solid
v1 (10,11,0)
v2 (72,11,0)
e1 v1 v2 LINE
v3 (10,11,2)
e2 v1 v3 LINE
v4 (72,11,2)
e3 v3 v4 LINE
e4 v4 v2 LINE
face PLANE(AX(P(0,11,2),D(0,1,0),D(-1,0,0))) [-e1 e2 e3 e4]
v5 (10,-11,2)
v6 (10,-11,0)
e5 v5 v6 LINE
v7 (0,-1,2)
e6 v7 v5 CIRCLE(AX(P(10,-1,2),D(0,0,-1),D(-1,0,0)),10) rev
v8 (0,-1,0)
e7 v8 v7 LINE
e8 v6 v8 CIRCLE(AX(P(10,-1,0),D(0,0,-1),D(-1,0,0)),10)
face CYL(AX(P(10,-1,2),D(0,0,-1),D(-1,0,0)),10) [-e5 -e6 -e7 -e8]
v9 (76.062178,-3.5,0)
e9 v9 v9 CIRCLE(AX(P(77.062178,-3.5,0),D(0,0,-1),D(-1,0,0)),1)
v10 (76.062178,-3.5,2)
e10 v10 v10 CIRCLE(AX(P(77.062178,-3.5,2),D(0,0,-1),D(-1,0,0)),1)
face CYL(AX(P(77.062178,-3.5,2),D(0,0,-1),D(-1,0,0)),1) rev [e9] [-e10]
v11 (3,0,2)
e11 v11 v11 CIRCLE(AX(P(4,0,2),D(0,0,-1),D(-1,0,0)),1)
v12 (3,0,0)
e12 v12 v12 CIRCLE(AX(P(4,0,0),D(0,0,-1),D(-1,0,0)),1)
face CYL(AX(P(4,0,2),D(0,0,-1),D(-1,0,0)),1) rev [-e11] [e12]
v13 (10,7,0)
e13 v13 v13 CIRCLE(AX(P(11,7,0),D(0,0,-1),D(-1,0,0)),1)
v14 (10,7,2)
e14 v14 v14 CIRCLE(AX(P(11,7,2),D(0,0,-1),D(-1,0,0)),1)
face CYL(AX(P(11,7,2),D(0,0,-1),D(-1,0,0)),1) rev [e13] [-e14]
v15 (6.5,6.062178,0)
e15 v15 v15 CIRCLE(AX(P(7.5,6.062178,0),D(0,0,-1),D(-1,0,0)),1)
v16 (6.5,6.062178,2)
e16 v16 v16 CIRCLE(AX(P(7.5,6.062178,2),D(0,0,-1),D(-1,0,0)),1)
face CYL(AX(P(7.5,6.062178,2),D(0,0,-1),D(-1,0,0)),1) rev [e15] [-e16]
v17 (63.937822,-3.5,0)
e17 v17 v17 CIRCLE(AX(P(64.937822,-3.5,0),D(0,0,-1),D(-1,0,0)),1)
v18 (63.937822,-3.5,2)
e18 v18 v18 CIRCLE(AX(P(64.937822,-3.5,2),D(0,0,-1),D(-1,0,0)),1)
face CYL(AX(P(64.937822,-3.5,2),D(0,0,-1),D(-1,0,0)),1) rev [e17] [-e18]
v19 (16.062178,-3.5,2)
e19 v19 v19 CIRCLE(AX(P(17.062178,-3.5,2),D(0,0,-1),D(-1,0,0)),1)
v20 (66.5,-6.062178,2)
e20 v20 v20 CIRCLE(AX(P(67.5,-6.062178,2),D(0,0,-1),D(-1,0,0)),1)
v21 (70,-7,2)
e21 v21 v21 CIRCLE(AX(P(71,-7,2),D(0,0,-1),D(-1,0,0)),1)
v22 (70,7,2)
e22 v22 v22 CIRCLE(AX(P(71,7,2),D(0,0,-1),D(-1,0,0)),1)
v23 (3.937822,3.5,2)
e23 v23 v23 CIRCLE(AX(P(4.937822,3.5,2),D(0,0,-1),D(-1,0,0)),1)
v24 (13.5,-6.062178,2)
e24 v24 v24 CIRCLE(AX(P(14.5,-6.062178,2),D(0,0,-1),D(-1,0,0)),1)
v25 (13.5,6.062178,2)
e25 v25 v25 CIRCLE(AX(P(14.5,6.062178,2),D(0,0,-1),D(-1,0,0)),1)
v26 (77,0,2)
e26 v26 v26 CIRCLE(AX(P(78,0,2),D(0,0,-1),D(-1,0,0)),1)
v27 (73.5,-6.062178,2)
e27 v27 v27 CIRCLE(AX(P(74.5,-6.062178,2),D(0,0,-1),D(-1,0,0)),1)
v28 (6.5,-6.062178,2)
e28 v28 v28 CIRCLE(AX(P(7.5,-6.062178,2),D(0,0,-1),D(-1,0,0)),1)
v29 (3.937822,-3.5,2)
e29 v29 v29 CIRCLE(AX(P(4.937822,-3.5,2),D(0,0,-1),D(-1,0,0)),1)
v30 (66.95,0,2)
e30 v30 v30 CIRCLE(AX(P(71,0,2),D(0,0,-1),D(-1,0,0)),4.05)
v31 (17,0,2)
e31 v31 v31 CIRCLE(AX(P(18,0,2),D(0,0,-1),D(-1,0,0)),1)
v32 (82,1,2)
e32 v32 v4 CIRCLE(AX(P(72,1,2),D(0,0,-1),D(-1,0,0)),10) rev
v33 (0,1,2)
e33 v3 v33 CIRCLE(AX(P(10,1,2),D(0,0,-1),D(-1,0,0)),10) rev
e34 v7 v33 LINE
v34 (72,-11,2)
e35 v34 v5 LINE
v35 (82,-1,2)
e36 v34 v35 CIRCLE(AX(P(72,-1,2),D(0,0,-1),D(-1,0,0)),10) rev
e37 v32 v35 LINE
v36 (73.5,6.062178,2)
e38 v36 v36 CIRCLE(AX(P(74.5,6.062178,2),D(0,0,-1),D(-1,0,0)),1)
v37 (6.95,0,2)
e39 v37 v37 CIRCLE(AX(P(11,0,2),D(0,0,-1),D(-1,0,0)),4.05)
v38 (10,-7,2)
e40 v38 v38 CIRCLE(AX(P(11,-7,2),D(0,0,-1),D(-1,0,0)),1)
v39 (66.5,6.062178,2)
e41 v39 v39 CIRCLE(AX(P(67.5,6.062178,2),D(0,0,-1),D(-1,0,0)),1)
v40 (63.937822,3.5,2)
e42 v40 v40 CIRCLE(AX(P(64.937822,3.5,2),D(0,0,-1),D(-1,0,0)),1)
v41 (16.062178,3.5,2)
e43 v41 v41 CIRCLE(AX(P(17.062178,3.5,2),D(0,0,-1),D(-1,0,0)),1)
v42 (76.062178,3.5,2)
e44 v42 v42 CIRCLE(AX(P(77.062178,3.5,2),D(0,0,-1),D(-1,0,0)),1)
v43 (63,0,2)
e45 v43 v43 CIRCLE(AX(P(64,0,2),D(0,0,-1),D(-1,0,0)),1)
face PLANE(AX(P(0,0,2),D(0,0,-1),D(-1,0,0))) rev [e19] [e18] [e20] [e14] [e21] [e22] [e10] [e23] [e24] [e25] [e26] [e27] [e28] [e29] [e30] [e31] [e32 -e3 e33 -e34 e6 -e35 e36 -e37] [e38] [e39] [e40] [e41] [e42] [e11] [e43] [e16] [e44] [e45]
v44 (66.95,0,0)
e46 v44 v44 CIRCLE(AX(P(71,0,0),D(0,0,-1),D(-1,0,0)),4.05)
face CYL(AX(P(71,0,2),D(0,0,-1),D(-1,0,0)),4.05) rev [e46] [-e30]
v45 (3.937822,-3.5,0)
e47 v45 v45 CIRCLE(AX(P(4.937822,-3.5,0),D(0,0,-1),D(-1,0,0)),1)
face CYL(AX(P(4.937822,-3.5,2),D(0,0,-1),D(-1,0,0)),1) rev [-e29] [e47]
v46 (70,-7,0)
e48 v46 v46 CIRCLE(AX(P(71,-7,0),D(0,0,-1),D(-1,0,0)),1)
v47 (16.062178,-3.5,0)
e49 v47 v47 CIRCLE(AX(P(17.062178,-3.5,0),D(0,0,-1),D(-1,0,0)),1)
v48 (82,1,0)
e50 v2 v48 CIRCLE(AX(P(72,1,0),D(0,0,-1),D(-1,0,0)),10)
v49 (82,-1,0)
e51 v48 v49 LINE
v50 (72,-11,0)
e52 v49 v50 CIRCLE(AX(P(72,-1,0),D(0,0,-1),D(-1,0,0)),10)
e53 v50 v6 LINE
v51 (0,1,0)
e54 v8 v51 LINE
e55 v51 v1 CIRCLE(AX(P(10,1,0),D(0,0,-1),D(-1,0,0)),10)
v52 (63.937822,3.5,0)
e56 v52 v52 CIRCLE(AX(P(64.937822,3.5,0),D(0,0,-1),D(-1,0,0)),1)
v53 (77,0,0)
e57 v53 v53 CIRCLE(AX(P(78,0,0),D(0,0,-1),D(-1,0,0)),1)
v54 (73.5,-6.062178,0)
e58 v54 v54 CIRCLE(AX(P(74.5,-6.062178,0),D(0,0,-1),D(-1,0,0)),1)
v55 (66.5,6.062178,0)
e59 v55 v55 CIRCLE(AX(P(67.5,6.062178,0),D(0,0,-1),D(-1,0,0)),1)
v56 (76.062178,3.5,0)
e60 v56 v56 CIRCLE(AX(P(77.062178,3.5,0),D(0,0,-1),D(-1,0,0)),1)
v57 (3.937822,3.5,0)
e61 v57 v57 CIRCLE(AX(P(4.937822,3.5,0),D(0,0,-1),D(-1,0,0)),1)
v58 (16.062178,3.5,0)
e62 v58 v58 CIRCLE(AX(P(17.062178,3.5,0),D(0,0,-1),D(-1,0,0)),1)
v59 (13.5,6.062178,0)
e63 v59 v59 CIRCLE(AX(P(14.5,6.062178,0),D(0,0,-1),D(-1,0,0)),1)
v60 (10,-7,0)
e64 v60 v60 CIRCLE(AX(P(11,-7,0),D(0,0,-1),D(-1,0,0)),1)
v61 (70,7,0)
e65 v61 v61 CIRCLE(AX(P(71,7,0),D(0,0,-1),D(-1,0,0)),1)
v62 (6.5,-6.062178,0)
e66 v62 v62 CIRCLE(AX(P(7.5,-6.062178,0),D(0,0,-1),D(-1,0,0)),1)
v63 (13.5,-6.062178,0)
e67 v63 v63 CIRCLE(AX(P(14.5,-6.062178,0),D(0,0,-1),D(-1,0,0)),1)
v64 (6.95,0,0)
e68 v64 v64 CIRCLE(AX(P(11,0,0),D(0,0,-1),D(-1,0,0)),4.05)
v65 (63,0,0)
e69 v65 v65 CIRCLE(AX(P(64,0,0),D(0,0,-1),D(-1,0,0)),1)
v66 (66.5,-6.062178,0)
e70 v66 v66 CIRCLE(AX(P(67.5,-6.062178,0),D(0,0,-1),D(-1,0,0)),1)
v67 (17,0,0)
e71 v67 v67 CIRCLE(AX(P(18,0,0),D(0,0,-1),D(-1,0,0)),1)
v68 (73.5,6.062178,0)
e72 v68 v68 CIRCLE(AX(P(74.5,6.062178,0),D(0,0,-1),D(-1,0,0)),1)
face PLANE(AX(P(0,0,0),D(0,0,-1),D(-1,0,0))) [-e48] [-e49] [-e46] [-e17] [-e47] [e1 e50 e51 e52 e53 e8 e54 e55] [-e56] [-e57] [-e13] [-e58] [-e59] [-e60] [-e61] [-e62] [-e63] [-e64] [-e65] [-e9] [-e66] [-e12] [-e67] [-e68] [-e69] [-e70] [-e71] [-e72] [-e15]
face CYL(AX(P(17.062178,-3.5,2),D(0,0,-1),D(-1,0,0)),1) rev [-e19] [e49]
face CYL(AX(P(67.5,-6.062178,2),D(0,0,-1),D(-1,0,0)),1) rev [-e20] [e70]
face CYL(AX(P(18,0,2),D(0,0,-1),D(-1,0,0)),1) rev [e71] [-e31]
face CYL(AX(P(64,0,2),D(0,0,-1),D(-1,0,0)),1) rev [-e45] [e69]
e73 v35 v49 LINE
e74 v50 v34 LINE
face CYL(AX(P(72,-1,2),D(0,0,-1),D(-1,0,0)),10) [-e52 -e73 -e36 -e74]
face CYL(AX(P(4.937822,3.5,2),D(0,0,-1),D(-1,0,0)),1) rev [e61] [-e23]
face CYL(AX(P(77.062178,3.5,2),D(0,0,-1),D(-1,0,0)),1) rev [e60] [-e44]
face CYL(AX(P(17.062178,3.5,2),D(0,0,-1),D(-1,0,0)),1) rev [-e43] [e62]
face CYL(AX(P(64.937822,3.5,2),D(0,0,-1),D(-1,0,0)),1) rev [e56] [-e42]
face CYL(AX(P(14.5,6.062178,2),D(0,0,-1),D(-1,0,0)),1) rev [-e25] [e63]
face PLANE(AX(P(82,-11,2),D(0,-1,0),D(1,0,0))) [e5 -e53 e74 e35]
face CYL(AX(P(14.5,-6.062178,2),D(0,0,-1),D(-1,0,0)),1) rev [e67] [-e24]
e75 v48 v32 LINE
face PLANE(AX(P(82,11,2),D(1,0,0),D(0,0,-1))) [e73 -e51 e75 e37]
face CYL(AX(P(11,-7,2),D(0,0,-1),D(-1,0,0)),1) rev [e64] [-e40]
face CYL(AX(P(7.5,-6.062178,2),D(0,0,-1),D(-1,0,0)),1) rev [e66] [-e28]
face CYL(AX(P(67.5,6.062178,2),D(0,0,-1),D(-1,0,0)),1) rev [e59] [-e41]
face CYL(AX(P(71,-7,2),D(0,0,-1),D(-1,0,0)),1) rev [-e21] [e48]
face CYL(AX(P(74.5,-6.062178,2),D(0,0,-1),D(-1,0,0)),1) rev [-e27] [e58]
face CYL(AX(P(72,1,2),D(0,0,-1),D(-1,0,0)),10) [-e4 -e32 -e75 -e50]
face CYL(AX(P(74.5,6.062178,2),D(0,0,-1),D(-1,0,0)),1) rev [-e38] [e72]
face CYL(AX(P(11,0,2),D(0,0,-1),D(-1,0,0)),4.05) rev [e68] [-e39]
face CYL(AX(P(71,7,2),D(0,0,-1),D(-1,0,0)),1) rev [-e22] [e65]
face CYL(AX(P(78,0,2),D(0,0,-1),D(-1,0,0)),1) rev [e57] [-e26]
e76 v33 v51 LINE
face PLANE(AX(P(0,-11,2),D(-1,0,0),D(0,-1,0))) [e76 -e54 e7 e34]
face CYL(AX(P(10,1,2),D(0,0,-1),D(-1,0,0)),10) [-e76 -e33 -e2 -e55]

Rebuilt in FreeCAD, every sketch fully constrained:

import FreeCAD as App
import Part
import Sketcher


def edges_at(feature, points):
    """Names of the edges that pass closest to the given points."""
    edges = feature.Shape.Edges
    near = lambda p: min(range(len(edges)), key=lambda i: edges[i].distToShape(Part.Vertex(*p))[0])
    return sorted({f"Edge{near(p) + 1}" for p in points})


def add_polygon(sketch, points):
    """Adds a closed chain of lines whose ends are joined by coincident constraints."""
    first, n = sketch.GeometryCount, len(points)
    for a, b in zip(points, points[1:] + points[:1]):
        sketch.addGeometry(Part.LineSegment(App.Vector(*a, 0), App.Vector(*b, 0)), False)
    for i in range(n):
        sketch.addConstraint(Sketcher.Constraint("Coincident", first + i, 2, first + (i + 1) % n, 1))

doc = App.newDocument("Part")
body = doc.addObject("PartDesign::Body", "Body")

# Sketch on XY plane
sketch1 = body.newObject("Sketcher::SketchObject", "Sketch")
sketch1.AttachmentSupport = (doc.getObject("XY_Plane"), [""])
sketch1.MapMode = "FlatFace"
add_polygon(sketch1, [(82, 11), (82, -11), (0, -11), (0, 11)])  # lines 0-3
sketch1.addGeometry(Part.Circle(App.Vector(74.5, -6.1, 0), App.Vector(0, 0, 1), 1), False)  # 4
sketch1.addGeometry(Part.Circle(App.Vector(71, -7, 0), App.Vector(0, 0, 1), 1), False)  # 5
sketch1.addGeometry(Part.Circle(App.Vector(67.5, -6.1, 0), App.Vector(0, 0, 1), 1), False)  # 6
sketch1.addGeometry(Part.Circle(App.Vector(77.1, -3.5, 0), App.Vector(0, 0, 1), 1), False)  # 7
sketch1.addGeometry(Part.Circle(App.Vector(64.9, -3.5, 0), App.Vector(0, 0, 1), 1), False)  # 8
sketch1.addGeometry(Part.Circle(App.Vector(14.5, -6.1, 0), App.Vector(0, 0, 1), 1), False)  # 9
sketch1.addGeometry(Part.Circle(App.Vector(11, -7, 0), App.Vector(0, 0, 1), 1), False)  # 10
sketch1.addGeometry(Part.Circle(App.Vector(7.5, -6.1, 0), App.Vector(0, 0, 1), 1), False)  # 11
sketch1.addGeometry(Part.Circle(App.Vector(17.1, -3.5, 0), App.Vector(0, 0, 1), 1), False)  # 12
sketch1.addGeometry(Part.Circle(App.Vector(4.9, -3.5, 0), App.Vector(0, 0, 1), 1), False)  # 13
sketch1.addGeometry(Part.Circle(App.Vector(78, 0, 0), App.Vector(0, 0, 1), 1), False)  # 14
sketch1.addGeometry(Part.Circle(App.Vector(71, 0, 0), App.Vector(0, 0, 1), 4), False)  # 15
sketch1.addGeometry(Part.Circle(App.Vector(64, 0, 0), App.Vector(0, 0, 1), 1), False)  # 16
sketch1.addGeometry(Part.Circle(App.Vector(77.1, 3.5, 0), App.Vector(0, 0, 1), 1), False)  # 17
sketch1.addGeometry(Part.Circle(App.Vector(64.9, 3.5, 0), App.Vector(0, 0, 1), 1), False)  # 18
sketch1.addGeometry(Part.Circle(App.Vector(74.5, 6.1, 0), App.Vector(0, 0, 1), 1), False)  # 19
sketch1.addGeometry(Part.Circle(App.Vector(71, 7, 0), App.Vector(0, 0, 1), 1), False)  # 20
sketch1.addGeometry(Part.Circle(App.Vector(67.5, 6.1, 0), App.Vector(0, 0, 1), 1), False)  # 21
sketch1.addGeometry(Part.Circle(App.Vector(18, 0, 0), App.Vector(0, 0, 1), 1), False)  # 22
sketch1.addGeometry(Part.Circle(App.Vector(11, 0, 0), App.Vector(0, 0, 1), 4), False)  # 23
sketch1.addGeometry(Part.Circle(App.Vector(4, 0, 0), App.Vector(0, 0, 1), 1), False)  # 24
sketch1.addGeometry(Part.Circle(App.Vector(17.1, 3.5, 0), App.Vector(0, 0, 1), 1), False)  # 25
sketch1.addGeometry(Part.Circle(App.Vector(4.9, 3.5, 0), App.Vector(0, 0, 1), 1), False)  # 26
sketch1.addGeometry(Part.Circle(App.Vector(14.5, 6.1, 0), App.Vector(0, 0, 1), 1), False)  # 27
sketch1.addGeometry(Part.Circle(App.Vector(7.5, 6.1, 0), App.Vector(0, 0, 1), 1), False)  # 28
sketch1.addGeometry(Part.Circle(App.Vector(11, 7, 0), App.Vector(0, 0, 1), 1), False)  # 29
sketch1.addConstraint(Sketcher.Constraint("Vertical", 0))
sketch1.addConstraint(Sketcher.Constraint("Horizontal", 1))
sketch1.addConstraint(Sketcher.Constraint("Vertical", 2))
sketch1.addConstraint(Sketcher.Constraint("Horizontal", 3))
sketch1.addConstraint(Sketcher.Constraint("Equal", 4, 5))
sketch1.addConstraint(Sketcher.Constraint("Equal", 5, 6))
sketch1.addConstraint(Sketcher.Constraint("Equal", 6, 7))
sketch1.addConstraint(Sketcher.Constraint("Equal", 7, 8))
sketch1.addConstraint(Sketcher.Constraint("Equal", 8, 9))
sketch1.addConstraint(Sketcher.Constraint("Equal", 9, 10))
sketch1.addConstraint(Sketcher.Constraint("Equal", 10, 11))
sketch1.addConstraint(Sketcher.Constraint("Equal", 11, 12))
sketch1.addConstraint(Sketcher.Constraint("Equal", 12, 13))
sketch1.addConstraint(Sketcher.Constraint("Equal", 13, 14))
sketch1.addConstraint(Sketcher.Constraint("Equal", 14, 16))
sketch1.addConstraint(Sketcher.Constraint("Equal", 16, 17))
sketch1.addConstraint(Sketcher.Constraint("Equal", 17, 18))
sketch1.addConstraint(Sketcher.Constraint("Equal", 18, 19))
sketch1.addConstraint(Sketcher.Constraint("Equal", 19, 20))
sketch1.addConstraint(Sketcher.Constraint("Equal", 20, 21))
sketch1.addConstraint(Sketcher.Constraint("Equal", 21, 22))
sketch1.addConstraint(Sketcher.Constraint("Equal", 15, 23))
sketch1.addConstraint(Sketcher.Constraint("Equal", 22, 24))
sketch1.addConstraint(Sketcher.Constraint("Equal", 24, 25))
sketch1.addConstraint(Sketcher.Constraint("Equal", 25, 26))
sketch1.addConstraint(Sketcher.Constraint("Equal", 26, 27))
sketch1.addConstraint(Sketcher.Constraint("Equal", 27, 28))
sketch1.addConstraint(Sketcher.Constraint("Equal", 28, 29))
sketch1.addConstraint(Sketcher.Constraint("Symmetric", 1, 2, 2, 2, -1, 1))
sketch1.addConstraint(Sketcher.Constraint("Symmetric", 7, 3, 17, 3, -1))
sketch1.addConstraint(Sketcher.Constraint("Symmetric", 8, 3, 18, 3, -1))
sketch1.addConstraint(Sketcher.Constraint("Symmetric", 4, 3, 19, 3, -1))
sketch1.addConstraint(Sketcher.Constraint("Symmetric", 5, 3, 20, 3, -1))
sketch1.addConstraint(Sketcher.Constraint("Symmetric", 6, 3, 21, 3, -1))
sketch1.addConstraint(Sketcher.Constraint("Symmetric", 12, 3, 25, 3, -1))
sketch1.addConstraint(Sketcher.Constraint("Symmetric", 13, 3, 26, 3, -1))
sketch1.addConstraint(Sketcher.Constraint("Symmetric", 9, 3, 27, 3, -1))
sketch1.addConstraint(Sketcher.Constraint("Symmetric", 11, 3, 28, 3, -1))
sketch1.addConstraint(Sketcher.Constraint("Symmetric", 10, 3, 29, 3, -1))
sketch1.addConstraint(Sketcher.Constraint("PointOnObject", 14, 3, -1))
sketch1.addConstraint(Sketcher.Constraint("PointOnObject", 15, 3, -1))
sketch1.addConstraint(Sketcher.Constraint("PointOnObject", 16, 3, -1))
sketch1.addConstraint(Sketcher.Constraint("PointOnObject", 22, 3, -1))
sketch1.addConstraint(Sketcher.Constraint("PointOnObject", 23, 3, -1))
sketch1.addConstraint(Sketcher.Constraint("PointOnObject", 24, 3, -1))
sketch1.addConstraint(Sketcher.Constraint("Horizontal", 4, 3, 6, 3))
sketch1.addConstraint(Sketcher.Constraint("Horizontal", 7, 3, 8, 3))
sketch1.addConstraint(Sketcher.Constraint("Horizontal", 6, 3, 9, 3))
sketch1.addConstraint(Sketcher.Constraint("Horizontal", 5, 3, 10, 3))
sketch1.addConstraint(Sketcher.Constraint("Horizontal", 9, 3, 11, 3))
sketch1.addConstraint(Sketcher.Constraint("Horizontal", 8, 3, 12, 3))
sketch1.addConstraint(Sketcher.Constraint("Horizontal", 12, 3, 13, 3))
sketch1.addConstraint(Sketcher.Constraint("Vertical", 5, 3, 15, 3))
sketch1.addConstraint(Sketcher.Constraint("Vertical", 10, 3, 23, 3))
sketch1.addConstraint(Sketcher.Constraint("Diameter", 4, 2.0))
sketch1.addConstraint(Sketcher.Constraint("Diameter", 15, 8.1))
sketch1.addConstraint(Sketcher.Constraint("DistanceX", 1, 2, 1, 1, 82.0))
sketch1.addConstraint(Sketcher.Constraint("DistanceY", 0, 2, 0, 1, 22.0))
sketch1.addConstraint(Sketcher.Constraint("DistanceX", -1, 1, 5, 3, 71.0))
sketch1.addConstraint(Sketcher.Constraint("DistanceY", 5, 3, -1, 1, 7.0))
sketch1.addConstraint(Sketcher.Constraint("DistanceX", -1, 1, 10, 3, 11.0))
sketch1.addConstraint(Sketcher.Constraint("DistanceX", -1, 1, 14, 3, 78.0))
sketch1.addConstraint(Sketcher.Constraint("DistanceX", -1, 1, 16, 3, 64.0))
sketch1.addConstraint(Sketcher.Constraint("DistanceX", -1, 1, 22, 3, 18.0))
sketch1.addConstraint(Sketcher.Constraint("DistanceX", -1, 1, 24, 3, 4.0))
sketch1.addConstraint(Sketcher.Constraint("DistanceX", 6, 3, 4, 3, 7.0))
sketch1.addConstraint(Sketcher.Constraint("DistanceX", 9, 3, 6, 3, 53.0))
sketch1.addConstraint(Sketcher.Constraint("DistanceX", 11, 3, 9, 3, 7.0))
sketch1.addConstraint(Sketcher.Constraint("DistanceX", 13, 3, 8, 3, 60.0))
sketch1.addConstraint(Sketcher.Constraint("DistanceY", 7, 3, 17, 3, 7.0))
sketch1.addConstraint(Sketcher.Constraint("DistanceX", -1, 1, 4, 3, 74.5))
sketch1.addConstraint(Sketcher.Constraint("DistanceY", 4, 3, -1, 1, 6.062178))
sketch1.addConstraint(Sketcher.Constraint("DistanceX", -1, 1, 7, 3, 77.062178))
sketch1.addConstraint(Sketcher.Constraint("DistanceX", -1, 1, 8, 3, 64.937822))
sketch1.addConstraint(Sketcher.Constraint("DistanceX", -1, 1, 12, 3, 17.062178))
pad1 = body.newObject("PartDesign::Pad", "Pad")
pad1.Profile = sketch1
pad1.Length = 2
doc.recompute()

fillet = body.newObject("PartDesign::Fillet", "Fillet")
fillet.Base = (pad1, edges_at(pad1, [
    (82, 11, 1),
    (0, 11, 1),
    (0, -11, 1),
    (82, -11, 1),
]))
fillet.Radius = 10

doc.recompute()
